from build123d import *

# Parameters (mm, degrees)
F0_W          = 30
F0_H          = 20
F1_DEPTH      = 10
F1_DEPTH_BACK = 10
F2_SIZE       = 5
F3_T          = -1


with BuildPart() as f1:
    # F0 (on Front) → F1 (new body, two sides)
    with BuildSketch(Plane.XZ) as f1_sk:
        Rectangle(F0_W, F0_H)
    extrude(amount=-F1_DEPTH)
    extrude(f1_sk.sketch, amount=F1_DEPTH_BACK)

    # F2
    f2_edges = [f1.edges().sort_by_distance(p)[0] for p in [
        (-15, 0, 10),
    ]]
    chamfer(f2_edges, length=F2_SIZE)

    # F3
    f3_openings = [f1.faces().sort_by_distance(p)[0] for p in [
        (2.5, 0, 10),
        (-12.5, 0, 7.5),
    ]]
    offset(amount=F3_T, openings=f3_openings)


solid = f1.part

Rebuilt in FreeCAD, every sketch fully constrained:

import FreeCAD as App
import Part
import Sketcher
from FreeCAD import Vector
Q = App.Units.Quantity


def edges_at(feature, points):
    """Names of the edges that pass closest to the given points."""
    edges = feature.Shape.Edges
    near = lambda p: min(range(len(edges)), key=lambda i: edges[i].distToShape(Part.Vertex(*p))[0])
    return sorted({f"Edge{near(p) + 1}" for p in points})


def faces_at(feature, points):
    """Names of the faces that lie closest to the given points."""
    faces = feature.Shape.Faces
    near = lambda p: min(range(len(faces)), key=lambda i: faces[i].distToShape(Part.Vertex(*p))[0])
    return sorted({f"Face{near(p) + 1}" for p in points})


def add_polygon(sketch, points):
    """Adds a closed chain of lines whose ends are joined by coincident constraints."""
    first, n = sketch.GeometryCount, len(points)
    for a, b in zip(points, points[1:] + points[:1]):
        sketch.addGeometry(Part.LineSegment(App.Vector(*a, 0), App.Vector(*b, 0)), False)
    for i in range(n):
        sketch.addConstraint(Sketcher.Constraint("Coincident", first + i, 2, first + (i + 1) % n, 1))

doc = App.newDocument("Part")
params = doc.addObject("Spreadsheet::Sheet", "Params")
for row, (alias, value) in enumerate([
    ("sketch1_width", "30 mm"),
    ("sketch1_height", "20 mm"),
    ("pad1_length", "10 mm"),
    ("pad1_length2", "10 mm"),
    ("chamfer_size", "5 mm"),
    ("thickness_wall", "1 mm"),
], start=1):
    params.set(f"A{row}", alias)
    params.set(f"B{row}", "=" + value)
    params.setAlias(f"B{row}", alias)

body = doc.addObject("PartDesign::Body", "Body")

# Sketch on XZ plane
sketch1 = body.newObject("Sketcher::SketchObject", "Sketch")
sketch1.AttachmentSupport = (doc.getObject("XZ_Plane"), [""])
sketch1.MapMode = "FlatFace"
add_polygon(sketch1, [(-15, 10), (-15, -10), (15, -10), (15, 10)])  # lines 0-3
sketch1.addConstraint([
    Sketcher.Constraint("Vertical", 0),
    Sketcher.Constraint("Horizontal", 1),
    Sketcher.Constraint("Vertical", 2),
    Sketcher.Constraint("Horizontal", 3),
    Sketcher.Constraint("Symmetric", 0, 2, 2, 2, -1, 1),
    Sketcher.Constraint("DistanceX", 1, 1, 1, 2, Q("30 mm")),
    Sketcher.Constraint("DistanceY", 0, 2, 0, 1, Q("20 mm")),
])
sketch1.setExpression("Constraints[9]", "Params.sketch1_width")
sketch1.setExpression("Constraints[10]", "Params.sketch1_height")
pad1 = body.newObject("PartDesign::Pad", "Pad")
pad1.Profile = sketch1
pad1.Type = "TwoLengths"
pad1.setExpression("Length", "Params.pad1_length")
pad1.setExpression("Length2", "Params.pad1_length2")
pad1.Reversed = True
doc.recompute()

chamfer = body.newObject("PartDesign::Chamfer", "Chamfer")
chamfer.Base = (pad1, edges_at(pad1, [(-15, 0, 10)]))
chamfer.setExpression("Size", "Params.chamfer_size")
doc.recompute()

thickness = body.newObject("PartDesign::Thickness", "Thickness")
thickness.Base = (chamfer, faces_at(chamfer, [(2.5, 0, 10), (-12.5, 0, 7.5)]))
thickness.setExpression("Value", "Params.thickness_wall")
thickness.Reversed = True
thickness.Join = "Arc"

doc.recompute()
